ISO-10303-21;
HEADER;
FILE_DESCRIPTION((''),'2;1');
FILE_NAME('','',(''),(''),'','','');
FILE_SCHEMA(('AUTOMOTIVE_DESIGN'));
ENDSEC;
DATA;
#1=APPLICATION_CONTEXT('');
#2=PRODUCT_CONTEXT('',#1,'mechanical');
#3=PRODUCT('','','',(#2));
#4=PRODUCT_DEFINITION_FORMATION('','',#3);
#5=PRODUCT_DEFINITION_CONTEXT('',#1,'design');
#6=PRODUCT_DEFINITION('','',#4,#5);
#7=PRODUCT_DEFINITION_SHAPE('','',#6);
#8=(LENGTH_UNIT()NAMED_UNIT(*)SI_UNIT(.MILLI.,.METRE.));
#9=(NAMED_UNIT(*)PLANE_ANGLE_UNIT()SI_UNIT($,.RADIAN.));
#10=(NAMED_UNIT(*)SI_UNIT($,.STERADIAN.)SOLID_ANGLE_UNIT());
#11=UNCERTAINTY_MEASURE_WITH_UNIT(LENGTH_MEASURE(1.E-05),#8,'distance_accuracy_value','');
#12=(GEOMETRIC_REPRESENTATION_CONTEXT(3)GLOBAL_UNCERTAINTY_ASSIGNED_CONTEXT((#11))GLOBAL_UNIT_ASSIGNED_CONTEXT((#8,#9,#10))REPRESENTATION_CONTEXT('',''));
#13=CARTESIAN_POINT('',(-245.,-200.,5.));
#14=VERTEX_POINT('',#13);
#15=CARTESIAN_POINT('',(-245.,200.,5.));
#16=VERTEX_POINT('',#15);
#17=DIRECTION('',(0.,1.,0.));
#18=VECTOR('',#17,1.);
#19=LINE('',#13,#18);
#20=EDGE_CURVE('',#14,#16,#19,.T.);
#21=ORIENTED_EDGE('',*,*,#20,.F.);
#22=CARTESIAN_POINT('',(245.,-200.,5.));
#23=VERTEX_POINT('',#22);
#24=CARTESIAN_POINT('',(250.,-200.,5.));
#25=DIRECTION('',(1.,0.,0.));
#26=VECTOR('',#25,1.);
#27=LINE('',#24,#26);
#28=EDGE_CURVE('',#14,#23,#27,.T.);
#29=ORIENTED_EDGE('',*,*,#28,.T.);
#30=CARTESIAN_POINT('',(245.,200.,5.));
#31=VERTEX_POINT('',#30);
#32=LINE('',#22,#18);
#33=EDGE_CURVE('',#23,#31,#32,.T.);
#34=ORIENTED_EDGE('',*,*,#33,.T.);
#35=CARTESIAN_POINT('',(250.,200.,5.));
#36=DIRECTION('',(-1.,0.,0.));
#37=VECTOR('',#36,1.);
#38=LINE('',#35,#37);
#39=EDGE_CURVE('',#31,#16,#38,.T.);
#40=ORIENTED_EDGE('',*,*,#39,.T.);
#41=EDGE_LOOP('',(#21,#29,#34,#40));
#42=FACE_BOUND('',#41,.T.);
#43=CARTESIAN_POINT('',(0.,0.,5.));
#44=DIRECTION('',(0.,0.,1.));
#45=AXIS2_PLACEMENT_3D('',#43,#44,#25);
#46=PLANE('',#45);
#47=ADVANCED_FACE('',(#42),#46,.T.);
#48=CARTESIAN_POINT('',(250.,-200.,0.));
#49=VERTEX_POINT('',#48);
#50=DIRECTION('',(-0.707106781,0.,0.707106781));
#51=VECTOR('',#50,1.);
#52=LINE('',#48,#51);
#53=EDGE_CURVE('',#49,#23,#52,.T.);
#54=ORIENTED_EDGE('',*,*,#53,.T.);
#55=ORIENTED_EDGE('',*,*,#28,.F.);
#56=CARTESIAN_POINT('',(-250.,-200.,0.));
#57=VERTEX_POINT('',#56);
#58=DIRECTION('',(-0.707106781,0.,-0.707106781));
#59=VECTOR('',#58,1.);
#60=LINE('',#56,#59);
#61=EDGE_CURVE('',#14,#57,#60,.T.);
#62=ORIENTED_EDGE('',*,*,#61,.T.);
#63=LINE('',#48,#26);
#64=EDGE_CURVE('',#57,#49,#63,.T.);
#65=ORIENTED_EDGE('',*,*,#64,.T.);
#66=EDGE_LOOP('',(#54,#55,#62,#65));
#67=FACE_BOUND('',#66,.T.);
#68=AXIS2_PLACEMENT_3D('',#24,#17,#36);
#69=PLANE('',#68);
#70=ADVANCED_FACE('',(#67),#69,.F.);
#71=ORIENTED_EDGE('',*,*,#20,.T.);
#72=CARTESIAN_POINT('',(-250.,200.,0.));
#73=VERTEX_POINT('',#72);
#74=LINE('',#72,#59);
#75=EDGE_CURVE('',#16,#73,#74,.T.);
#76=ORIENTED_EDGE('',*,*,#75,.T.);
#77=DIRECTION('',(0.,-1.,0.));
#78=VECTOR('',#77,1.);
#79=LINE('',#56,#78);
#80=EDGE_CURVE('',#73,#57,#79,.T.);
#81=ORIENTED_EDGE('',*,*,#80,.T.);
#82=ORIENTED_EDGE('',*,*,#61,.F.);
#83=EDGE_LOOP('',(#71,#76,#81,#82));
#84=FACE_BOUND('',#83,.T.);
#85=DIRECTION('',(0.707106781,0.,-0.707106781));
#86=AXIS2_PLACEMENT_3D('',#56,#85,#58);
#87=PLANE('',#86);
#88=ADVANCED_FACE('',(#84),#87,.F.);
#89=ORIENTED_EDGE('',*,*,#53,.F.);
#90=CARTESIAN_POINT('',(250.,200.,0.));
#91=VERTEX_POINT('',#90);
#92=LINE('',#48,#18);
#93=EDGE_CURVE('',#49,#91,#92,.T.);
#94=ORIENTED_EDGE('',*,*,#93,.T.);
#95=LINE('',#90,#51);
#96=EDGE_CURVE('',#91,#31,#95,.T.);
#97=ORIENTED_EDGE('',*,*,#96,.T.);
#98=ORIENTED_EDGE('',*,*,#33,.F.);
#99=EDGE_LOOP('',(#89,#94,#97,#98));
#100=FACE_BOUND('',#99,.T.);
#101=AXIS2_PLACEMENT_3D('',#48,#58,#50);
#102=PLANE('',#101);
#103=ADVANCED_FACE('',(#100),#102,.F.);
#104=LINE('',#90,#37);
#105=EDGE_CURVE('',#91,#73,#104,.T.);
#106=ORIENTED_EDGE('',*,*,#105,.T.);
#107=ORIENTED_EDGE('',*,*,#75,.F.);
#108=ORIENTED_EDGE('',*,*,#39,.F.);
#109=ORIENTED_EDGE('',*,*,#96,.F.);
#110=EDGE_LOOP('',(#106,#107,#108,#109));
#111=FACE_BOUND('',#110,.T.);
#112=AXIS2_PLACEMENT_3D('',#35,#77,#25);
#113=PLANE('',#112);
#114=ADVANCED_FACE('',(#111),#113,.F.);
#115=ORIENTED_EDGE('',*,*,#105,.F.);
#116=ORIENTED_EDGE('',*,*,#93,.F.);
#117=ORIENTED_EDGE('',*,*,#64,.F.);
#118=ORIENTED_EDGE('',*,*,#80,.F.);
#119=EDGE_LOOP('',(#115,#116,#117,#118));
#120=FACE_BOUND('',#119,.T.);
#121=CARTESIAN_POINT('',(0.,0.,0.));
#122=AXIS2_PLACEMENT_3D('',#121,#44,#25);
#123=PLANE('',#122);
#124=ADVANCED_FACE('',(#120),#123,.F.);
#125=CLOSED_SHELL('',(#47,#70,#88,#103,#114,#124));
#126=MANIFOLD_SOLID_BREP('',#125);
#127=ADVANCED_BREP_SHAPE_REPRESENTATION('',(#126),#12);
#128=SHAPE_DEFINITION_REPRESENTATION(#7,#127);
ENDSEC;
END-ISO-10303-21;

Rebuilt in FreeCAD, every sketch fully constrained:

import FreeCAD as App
import Part
import Sketcher
Q = App.Units.Quantity

doc = App.newDocument("Part")
body = doc.addObject("PartDesign::Body", "Body")

sketch1 = body.newObject("Sketcher::SketchObject", "Sketch")
sketch1.AttachmentSupport = (doc.getObject("XY_Plane"), [""])
sketch1.MapMode = "FlatFace"
sketch1.addGeometry([
    Part.LineSegment(App.Vector(-250, 200, 0), App.Vector(-250, -200, 0)),
    Part.LineSegment(App.Vector(-250, -200, 0), App.Vector(250, -200, 0)),
    Part.LineSegment(App.Vector(250, -200, 0), App.Vector(250, 200, 0)),
    Part.LineSegment(App.Vector(250, 200, 0), App.Vector(-250, 200, 0)),
], False)
sketch1.addConstraint([
    Sketcher.Constraint("Coincident", 0, 2, 1, 1),
    Sketcher.Constraint("Coincident", 1, 2, 2, 1),
    Sketcher.Constraint("Coincident", 2, 2, 3, 1),
    Sketcher.Constraint("Coincident", 3, 2, 0, 1),
    Sketcher.Constraint("Vertical", 0),
    Sketcher.Constraint("Horizontal", 1),
    Sketcher.Constraint("Vertical", 2),
    Sketcher.Constraint("Horizontal", 3),
    Sketcher.Constraint("Symmetric", 0, 2, 2, 2, -1, 1),
    Sketcher.Constraint("DistanceX", 1, 1, 1, 2, Q("500 mm")),
    Sketcher.Constraint("DistanceY", 0, 2, 0, 1, Q("400 mm")),
])
pad1 = body.newObject("PartDesign::Pad", "Pad")
pad1.Profile = sketch1
pad1.Length = 5

sketch2 = body.newObject("Sketcher::SketchObject", "Sketch001")
sketch2.AttachmentSupport = (doc.getObject("XZ_Plane"), [""])
sketch2.MapMode = "FlatFace"
sketch2.AttachmentOffset = App.Placement(App.Vector(0, 0, -200), App.Rotation())
sketch2.addGeometry([
    Part.LineSegment(App.Vector(-250, 0, 0), App.Vector(-250, 5, 0)),
    Part.LineSegment(App.Vector(-250, 5, 0), App.Vector(-245, 5, 0)),
    Part.LineSegment(App.Vector(-245, 5, 0), App.Vector(-250, 0, 0)),
    Part.LineSegment(App.Vector(245, 5, 0), App.Vector(250, 5, 0)),
    Part.LineSegment(App.Vector(250, 5, 0), App.Vector(250, 0, 0)),
    Part.LineSegment(App.Vector(250, 0, 0), App.Vector(245, 5, 0)),
], False)
sketch2.addConstraint([
    Sketcher.Constraint("Coincident", 0, 2, 1, 1),
    Sketcher.Constraint("Coincident", 1, 2, 2, 1),
    Sketcher.Constraint("Coincident", 2, 2, 0, 1),
    Sketcher.Constraint("Coincident", 3, 2, 4, 1),
    Sketcher.Constraint("Coincident", 4, 2, 5, 1),
    Sketcher.Constraint("Coincident", 5, 2, 3, 1),
    Sketcher.Constraint("Vertical", 0),
    Sketcher.Constraint("Horizontal", 1),
    Sketcher.Constraint("Horizontal", 3),
    Sketcher.Constraint("Vertical", 4),
    Sketcher.Constraint("Symmetric", 2, 2, 4, 2, -1, 1),
    Sketcher.Constraint("Symmetric", 1, 2, 5, 2, -2),
    Sketcher.Constraint("PointOnObject", 2, 2, -1),
    Sketcher.Constraint("Perpendicular", 2, 5),
    Sketcher.Constraint("DistanceX", 1, 1, 1, 2, Q("5 mm")),
    Sketcher.Constraint("DistanceX", 0, 2, -1, 1, Q("250 mm")),
])
pocket1 = body.newObject("PartDesign::Pocket", "Pocket")
pocket1.Profile = sketch2
pocket1.Type = "ThroughAll"
pocket1.Reversed = True

doc.recompute()
